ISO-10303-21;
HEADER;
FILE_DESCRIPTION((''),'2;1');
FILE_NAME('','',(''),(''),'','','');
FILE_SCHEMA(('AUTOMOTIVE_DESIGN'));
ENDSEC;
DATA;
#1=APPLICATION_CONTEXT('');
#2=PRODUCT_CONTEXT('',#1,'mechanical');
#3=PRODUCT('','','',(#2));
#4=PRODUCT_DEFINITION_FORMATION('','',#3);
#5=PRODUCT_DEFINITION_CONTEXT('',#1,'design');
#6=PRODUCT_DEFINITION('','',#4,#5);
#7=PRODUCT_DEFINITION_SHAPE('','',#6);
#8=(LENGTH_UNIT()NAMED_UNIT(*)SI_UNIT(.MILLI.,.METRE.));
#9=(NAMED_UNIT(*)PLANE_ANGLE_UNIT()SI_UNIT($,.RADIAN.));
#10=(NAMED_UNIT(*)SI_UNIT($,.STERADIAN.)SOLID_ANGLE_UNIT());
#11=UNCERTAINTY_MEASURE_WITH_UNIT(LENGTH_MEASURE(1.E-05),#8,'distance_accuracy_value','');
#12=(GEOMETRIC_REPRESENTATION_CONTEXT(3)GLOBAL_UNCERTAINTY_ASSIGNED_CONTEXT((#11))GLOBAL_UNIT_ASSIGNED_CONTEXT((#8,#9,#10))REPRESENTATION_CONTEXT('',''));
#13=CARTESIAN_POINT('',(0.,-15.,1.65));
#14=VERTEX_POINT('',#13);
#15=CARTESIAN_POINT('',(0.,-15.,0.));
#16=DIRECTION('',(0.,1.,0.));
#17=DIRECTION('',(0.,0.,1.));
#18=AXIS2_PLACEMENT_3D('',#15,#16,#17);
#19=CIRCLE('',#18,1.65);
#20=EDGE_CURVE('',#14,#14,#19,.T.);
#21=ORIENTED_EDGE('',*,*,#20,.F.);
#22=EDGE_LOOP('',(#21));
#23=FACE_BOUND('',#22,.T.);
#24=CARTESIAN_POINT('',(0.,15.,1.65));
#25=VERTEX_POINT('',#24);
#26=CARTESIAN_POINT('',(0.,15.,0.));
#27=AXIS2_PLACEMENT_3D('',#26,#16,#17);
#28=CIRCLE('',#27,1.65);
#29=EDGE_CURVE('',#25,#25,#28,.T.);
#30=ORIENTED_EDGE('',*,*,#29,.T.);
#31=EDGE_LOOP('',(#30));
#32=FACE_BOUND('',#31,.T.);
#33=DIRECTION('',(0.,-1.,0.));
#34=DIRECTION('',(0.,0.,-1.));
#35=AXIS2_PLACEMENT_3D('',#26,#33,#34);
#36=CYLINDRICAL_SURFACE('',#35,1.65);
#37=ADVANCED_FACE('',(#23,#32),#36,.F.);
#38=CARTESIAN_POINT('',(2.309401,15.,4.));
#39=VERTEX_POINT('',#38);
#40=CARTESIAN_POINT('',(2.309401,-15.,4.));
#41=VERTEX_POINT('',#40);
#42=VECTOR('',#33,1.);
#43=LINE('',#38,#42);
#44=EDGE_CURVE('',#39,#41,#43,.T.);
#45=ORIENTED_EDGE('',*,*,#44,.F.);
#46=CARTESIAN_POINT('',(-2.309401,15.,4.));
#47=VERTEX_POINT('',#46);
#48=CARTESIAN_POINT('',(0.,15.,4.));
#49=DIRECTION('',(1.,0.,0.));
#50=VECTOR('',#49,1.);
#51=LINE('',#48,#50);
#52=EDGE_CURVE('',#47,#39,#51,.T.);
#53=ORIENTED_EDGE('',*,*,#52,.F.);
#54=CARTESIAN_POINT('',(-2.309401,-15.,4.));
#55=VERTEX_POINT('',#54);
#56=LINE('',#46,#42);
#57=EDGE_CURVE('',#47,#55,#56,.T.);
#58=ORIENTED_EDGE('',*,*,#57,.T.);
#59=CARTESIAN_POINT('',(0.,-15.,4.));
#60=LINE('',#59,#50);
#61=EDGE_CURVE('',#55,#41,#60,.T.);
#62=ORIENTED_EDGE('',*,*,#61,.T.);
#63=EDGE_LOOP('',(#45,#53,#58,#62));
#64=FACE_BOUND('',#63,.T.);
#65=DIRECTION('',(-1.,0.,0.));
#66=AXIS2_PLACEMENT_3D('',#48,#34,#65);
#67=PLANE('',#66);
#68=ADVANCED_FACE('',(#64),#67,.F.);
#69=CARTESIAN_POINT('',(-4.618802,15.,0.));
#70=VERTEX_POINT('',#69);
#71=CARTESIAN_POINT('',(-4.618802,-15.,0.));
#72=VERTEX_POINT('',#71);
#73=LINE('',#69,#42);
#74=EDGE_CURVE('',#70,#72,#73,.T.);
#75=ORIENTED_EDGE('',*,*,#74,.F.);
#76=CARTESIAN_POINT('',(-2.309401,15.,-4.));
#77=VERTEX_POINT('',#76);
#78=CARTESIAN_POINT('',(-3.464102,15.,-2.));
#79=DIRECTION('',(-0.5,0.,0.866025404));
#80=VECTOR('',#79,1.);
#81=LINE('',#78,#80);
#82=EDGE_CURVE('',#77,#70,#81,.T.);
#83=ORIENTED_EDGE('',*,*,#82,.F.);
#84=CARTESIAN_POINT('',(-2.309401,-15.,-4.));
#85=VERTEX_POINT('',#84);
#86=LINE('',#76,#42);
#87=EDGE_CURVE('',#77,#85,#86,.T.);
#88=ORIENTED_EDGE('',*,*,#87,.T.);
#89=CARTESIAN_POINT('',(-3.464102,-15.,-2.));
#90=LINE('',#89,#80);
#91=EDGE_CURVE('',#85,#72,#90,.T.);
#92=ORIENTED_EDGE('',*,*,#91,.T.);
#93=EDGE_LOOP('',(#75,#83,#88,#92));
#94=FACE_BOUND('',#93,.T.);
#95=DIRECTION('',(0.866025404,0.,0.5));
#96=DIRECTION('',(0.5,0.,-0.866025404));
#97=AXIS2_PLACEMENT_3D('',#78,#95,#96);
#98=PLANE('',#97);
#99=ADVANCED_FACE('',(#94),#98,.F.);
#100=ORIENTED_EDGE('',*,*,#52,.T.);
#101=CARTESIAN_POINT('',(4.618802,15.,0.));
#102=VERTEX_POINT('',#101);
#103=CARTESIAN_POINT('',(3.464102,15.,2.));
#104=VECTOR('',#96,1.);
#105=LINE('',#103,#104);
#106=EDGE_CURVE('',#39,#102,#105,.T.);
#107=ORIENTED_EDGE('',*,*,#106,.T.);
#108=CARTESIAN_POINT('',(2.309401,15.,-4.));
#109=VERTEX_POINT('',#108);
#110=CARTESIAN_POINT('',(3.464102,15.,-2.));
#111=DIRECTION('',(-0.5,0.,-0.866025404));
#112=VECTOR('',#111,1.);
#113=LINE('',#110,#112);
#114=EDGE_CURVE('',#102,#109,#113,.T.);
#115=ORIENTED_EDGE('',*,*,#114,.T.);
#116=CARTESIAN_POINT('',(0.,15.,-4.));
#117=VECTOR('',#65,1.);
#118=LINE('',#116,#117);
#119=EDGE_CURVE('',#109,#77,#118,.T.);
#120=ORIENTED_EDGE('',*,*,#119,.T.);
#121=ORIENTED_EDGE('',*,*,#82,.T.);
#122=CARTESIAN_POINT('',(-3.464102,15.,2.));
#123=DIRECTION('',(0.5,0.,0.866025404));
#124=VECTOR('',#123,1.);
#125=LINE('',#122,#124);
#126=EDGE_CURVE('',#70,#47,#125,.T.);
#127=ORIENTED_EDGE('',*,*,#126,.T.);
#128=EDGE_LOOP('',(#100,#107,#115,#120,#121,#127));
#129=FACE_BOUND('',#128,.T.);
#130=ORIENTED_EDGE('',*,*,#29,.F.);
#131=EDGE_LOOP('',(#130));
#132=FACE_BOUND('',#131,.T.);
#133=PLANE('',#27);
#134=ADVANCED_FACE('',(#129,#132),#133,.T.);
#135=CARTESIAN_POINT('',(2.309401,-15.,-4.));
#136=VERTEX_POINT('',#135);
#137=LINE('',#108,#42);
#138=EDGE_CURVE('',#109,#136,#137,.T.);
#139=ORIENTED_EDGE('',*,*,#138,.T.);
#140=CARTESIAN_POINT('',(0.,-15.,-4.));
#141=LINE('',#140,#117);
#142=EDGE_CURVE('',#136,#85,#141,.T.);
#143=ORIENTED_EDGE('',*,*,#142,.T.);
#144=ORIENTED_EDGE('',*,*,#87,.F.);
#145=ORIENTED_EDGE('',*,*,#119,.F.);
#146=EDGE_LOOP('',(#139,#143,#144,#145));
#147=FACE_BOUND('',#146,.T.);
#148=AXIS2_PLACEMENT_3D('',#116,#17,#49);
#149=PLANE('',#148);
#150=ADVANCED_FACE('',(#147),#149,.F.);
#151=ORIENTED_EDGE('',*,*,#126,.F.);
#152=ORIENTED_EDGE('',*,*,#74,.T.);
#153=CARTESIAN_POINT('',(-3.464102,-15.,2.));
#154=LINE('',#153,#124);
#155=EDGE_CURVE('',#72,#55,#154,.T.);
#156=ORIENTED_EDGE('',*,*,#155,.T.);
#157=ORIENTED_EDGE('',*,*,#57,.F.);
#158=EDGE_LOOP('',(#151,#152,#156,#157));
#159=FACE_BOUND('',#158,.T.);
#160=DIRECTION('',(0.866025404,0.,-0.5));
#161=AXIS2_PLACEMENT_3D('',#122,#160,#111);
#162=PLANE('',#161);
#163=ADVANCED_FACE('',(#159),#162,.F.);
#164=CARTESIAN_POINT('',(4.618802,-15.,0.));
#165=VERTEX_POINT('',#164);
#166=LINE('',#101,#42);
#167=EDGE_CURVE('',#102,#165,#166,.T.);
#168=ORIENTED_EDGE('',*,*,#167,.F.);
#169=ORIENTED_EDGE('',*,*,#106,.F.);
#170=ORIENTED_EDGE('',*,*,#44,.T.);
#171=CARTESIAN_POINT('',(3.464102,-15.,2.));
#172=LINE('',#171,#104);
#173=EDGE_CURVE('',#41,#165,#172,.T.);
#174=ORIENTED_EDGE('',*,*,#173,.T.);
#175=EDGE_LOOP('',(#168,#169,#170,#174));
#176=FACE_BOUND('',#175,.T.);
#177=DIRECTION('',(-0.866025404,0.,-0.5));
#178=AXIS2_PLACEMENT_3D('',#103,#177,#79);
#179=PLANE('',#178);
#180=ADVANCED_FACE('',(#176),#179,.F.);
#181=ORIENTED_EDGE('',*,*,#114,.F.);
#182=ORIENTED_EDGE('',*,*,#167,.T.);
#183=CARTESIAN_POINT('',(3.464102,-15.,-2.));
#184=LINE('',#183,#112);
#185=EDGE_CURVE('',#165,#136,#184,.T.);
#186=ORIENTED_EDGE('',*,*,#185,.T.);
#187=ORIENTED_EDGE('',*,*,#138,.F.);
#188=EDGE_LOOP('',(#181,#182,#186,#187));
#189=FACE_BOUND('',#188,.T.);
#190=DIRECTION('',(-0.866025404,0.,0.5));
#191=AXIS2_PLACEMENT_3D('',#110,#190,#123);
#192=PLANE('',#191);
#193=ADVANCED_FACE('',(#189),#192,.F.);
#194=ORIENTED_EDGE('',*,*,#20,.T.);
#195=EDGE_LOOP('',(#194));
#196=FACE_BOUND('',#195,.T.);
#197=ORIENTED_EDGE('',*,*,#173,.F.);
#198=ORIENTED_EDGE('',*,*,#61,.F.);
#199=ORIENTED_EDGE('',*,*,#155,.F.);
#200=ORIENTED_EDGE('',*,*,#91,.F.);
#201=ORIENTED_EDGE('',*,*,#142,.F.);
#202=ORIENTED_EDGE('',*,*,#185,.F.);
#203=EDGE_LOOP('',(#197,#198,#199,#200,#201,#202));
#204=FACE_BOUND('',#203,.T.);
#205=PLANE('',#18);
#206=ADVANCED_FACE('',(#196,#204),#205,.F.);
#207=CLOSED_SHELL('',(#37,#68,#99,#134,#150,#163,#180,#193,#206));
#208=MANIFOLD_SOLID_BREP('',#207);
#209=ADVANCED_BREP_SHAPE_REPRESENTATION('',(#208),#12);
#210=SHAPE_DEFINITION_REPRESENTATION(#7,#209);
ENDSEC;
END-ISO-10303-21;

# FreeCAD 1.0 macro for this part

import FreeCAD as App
import Part
import Sketcher
from FreeCAD import Vector
Q = App.Units.Quantity

doc = App.newDocument("Part")
body = doc.addObject("PartDesign::Body", "Body")

sketch1 = body.newObject("Sketcher::SketchObject", "Sketch")
sketch1.AttachmentSupport = (doc.getObject("XZ_Plane"), [""])
sketch1.MapMode = "FlatFace"
sketch1.addGeometry(Part.LineSegment(Vector(-2.3, 4, 0), Vector(2.3, 4, 0)), False)
sketch1.addGeometry(Part.LineSegment(Vector(2.3, 4, 0), Vector(4.6, 0, 0)), False)
sketch1.addGeometry(Part.LineSegment(Vector(4.6, 0, 0), Vector(2.3, -4, 0)), False)
sketch1.addGeometry(Part.LineSegment(Vector(2.3, -4, 0), Vector(-2.3, -4, 0)), False)
sketch1.addGeometry(Part.LineSegment(Vector(-2.3, -4, 0), Vector(-4.6, 0, 0)), False)
sketch1.addGeometry(Part.LineSegment(Vector(-4.6, 0, 0), Vector(-2.3, 4, 0)), False)
sketch1.addGeometry(Part.Circle(Vector(0, 0, 0), Vector(0, 0, 1), 1.6), False)
sketch1.addConstraint(Sketcher.Constraint("Coincident", 0, 2, 1, 1))
sketch1.addConstraint(Sketcher.Constraint("Coincident", 1, 2, 2, 1))
sketch1.addConstraint(Sketcher.Constraint("Coincident", 2, 2, 3, 1))
sketch1.addConstraint(Sketcher.Constraint("Coincident", 3, 2, 4, 1))
sketch1.addConstraint(Sketcher.Constraint("Coincident", 4, 2, 5, 1))
sketch1.addConstraint(Sketcher.Constraint("Coincident", 5, 2, 0, 1))
sketch1.addConstraint(Sketcher.Constraint("Horizontal", 0))
sketch1.addConstraint(Sketcher.Constraint("Horizontal", 3))
sketch1.addConstraint(Sketcher.Constraint("Coincident", 6, 3, -1, 1))
sketch1.addConstraint(Sketcher.Constraint("Symmetric", 0, 2, 3, 2, -1, 1))
sketch1.addConstraint(Sketcher.Constraint("Symmetric", 1, 2, 4, 2, -1, 1))
sketch1.addConstraint(Sketcher.Constraint("PointOnObject", 1, 2, -1))
sketch1.addConstraint(Sketcher.Constraint("Parallel", 2, 5))
sketch1.addConstraint(Sketcher.Constraint("Vertical", 0, 2, 2, 2))
sketch1.addConstraint(Sketcher.Constraint("Diameter", 6, Q("3.3 mm")))
sketch1.addConstraint(Sketcher.Constraint("Angle", 1, Q("-60 deg")))
sketch1.addConstraint(Sketcher.Constraint("DistanceY", -1, 1, 0, 2, Q("4 mm")))
sketch1.addConstraint(Sketcher.Constraint("DistanceX", -1, 1, 0, 2, Q("2.309401 mm")))
pad1 = body.newObject("PartDesign::Pad", "Pad")
pad1.Profile = sketch1
pad1.Length = 30
pad1.Midplane = True

doc.recompute()
